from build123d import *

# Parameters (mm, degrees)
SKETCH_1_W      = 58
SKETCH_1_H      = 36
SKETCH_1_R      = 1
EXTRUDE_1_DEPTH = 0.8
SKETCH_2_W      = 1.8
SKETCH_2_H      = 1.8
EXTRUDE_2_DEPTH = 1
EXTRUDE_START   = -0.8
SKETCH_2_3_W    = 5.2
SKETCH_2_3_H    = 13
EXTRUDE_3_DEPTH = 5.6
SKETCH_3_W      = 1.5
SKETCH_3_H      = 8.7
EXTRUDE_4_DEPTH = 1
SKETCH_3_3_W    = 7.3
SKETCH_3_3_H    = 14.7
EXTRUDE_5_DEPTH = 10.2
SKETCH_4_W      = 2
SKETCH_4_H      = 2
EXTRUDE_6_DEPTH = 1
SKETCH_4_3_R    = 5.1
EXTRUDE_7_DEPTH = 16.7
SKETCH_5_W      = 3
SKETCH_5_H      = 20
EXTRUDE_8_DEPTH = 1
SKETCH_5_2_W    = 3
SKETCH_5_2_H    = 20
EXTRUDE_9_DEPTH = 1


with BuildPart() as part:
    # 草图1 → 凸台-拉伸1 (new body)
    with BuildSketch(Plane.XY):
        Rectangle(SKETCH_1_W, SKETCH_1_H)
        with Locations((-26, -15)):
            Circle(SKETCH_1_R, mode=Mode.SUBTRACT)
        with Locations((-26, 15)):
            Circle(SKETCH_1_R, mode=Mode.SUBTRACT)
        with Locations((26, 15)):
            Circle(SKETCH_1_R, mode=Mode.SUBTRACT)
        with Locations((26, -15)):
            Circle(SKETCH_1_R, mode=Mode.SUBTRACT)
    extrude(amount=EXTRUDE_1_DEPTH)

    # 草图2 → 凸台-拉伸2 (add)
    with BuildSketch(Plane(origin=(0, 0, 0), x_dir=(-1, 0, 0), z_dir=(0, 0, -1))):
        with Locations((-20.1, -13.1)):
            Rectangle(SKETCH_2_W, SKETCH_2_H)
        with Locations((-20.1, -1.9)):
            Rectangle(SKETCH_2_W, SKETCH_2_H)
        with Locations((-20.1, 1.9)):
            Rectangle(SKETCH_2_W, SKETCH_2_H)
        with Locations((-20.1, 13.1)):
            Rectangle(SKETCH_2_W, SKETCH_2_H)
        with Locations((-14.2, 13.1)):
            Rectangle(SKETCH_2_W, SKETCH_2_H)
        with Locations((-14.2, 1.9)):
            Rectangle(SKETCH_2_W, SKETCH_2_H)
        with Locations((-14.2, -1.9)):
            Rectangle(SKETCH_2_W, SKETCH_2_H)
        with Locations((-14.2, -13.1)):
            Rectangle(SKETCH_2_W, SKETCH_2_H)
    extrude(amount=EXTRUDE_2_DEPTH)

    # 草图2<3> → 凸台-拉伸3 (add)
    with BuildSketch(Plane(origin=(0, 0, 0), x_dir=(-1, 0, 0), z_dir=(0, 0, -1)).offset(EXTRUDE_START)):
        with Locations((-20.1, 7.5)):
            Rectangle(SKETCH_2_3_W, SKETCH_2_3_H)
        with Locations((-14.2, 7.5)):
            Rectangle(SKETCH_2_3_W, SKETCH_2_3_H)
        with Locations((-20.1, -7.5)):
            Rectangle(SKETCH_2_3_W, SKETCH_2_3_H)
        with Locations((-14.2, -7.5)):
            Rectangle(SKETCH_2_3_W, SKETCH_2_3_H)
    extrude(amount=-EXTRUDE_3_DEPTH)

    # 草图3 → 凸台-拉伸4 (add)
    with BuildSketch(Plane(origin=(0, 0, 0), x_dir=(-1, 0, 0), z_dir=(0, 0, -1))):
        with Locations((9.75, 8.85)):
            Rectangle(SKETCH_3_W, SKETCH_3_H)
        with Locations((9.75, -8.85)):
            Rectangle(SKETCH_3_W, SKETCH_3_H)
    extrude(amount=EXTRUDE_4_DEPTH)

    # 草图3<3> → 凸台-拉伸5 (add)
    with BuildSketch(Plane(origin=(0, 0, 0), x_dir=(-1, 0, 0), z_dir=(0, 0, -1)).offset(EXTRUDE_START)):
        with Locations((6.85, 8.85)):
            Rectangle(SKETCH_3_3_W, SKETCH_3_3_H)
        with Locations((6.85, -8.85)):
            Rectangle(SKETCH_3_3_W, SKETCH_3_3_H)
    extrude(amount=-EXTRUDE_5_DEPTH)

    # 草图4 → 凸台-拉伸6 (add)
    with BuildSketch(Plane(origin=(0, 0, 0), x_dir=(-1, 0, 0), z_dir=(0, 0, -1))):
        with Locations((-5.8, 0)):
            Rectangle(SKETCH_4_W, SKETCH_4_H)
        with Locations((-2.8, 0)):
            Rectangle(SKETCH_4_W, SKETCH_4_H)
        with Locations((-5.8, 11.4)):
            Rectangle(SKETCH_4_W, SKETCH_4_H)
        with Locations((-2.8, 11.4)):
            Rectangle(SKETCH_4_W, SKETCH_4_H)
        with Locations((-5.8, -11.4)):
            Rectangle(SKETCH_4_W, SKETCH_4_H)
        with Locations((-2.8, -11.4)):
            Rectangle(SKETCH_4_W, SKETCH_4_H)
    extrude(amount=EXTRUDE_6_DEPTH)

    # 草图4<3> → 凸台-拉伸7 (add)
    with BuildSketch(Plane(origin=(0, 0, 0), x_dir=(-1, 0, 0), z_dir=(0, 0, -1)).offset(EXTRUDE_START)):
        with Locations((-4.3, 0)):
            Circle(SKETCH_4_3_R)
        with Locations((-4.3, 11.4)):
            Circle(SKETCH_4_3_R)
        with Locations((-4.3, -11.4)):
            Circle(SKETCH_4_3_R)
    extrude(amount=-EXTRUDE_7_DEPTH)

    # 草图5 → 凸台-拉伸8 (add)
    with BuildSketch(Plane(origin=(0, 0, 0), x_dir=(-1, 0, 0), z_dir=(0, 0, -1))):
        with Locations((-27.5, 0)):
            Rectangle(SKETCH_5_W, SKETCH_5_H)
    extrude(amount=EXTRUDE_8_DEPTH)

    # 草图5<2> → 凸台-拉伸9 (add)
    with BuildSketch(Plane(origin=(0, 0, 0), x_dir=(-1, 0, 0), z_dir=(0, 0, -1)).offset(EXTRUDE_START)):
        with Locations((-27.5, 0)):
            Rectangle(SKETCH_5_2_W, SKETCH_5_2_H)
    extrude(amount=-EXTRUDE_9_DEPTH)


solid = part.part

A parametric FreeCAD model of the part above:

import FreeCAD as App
import Part
import Sketcher

V = App.Vector
Q = App.Units.Quantity

doc = App.newDocument("Part")
params = doc.addObject("Spreadsheet::Sheet", "Params")
for row, (alias, value) in enumerate([
    ("sketch1_diameter", "2 mm"),
    ("sketch1_width", "58 mm"),
    ("sketch1_height", "36 mm"),
    ("pad1_length", "0.8 mm"),
    ("sketch2_width", "1.8 mm"),
    ("pad2_length", "1 mm"),
    ("sketch3_height", "13 mm"),
    ("sketch3_width", "5.2 mm"),
    ("pad3_length", "5.6 mm"),
    ("sketch4_width", "1.5 mm"),
    ("sketch4_height", "8.7 mm"),
    ("pad4_length", "1 mm"),
    ("sketch5_width", "7.3 mm"),
    ("sketch5_height", "14.7 mm"),
    ("pad5_length", "10.2 mm"),
    ("sketch6_width", "2 mm"),
    ("pad6_length", "1 mm"),
    ("sketch7_diameter", "10.2 mm"),
    ("pad7_length", "16.7 mm"),
    ("sketch8_width", "3 mm"),
    ("sketch8_height", "20 mm"),
    ("pad8_length", "1 mm"),
    ("sketch9_width", "3 mm"),
    ("sketch9_height", "20 mm"),
    ("pad9_length", "1 mm"),
], start=1):
    params.set(f"A{row}", alias)
    params.set(f"B{row}", "=" + value)
    params.setAlias(f"B{row}", alias)

body = doc.addObject("PartDesign::Body", "Body")

sketch1 = doc.addObject("Sketcher::SketchObject", "Sketch")
body.addObject(sketch1)
sketch1.AttachmentSupport = (doc.XY_Plane, [""])
sketch1.MapMode = "FlatFace"
sketch1.addGeometry(Part.LineSegment(V(-29, 18, 0), V(-29, -18, 0)), False)
sketch1.addGeometry(Part.LineSegment(V(-29, -18, 0), V(29, -18, 0)), False)
sketch1.addGeometry(Part.LineSegment(V(29, -18, 0), V(29, 18, 0)), False)
sketch1.addGeometry(Part.LineSegment(V(29, 18, 0), V(-29, 18, 0)), False)
sketch1.addGeometry(Part.Circle(V(-26, -15, 0), V(0, 0, 1), 1), False)
sketch1.addGeometry(Part.Circle(V(26, -15, 0), V(0, 0, 1), 1), False)
sketch1.addGeometry(Part.Circle(V(-26, 15, 0), V(0, 0, 1), 1), False)
sketch1.addGeometry(Part.Circle(V(26, 15, 0), V(0, 0, 1), 1), False)
sketch1.addConstraint(Sketcher.Constraint("Coincident", 0, 2, 1, 1))
sketch1.addConstraint(Sketcher.Constraint("Coincident", 1, 2, 2, 1))
sketch1.addConstraint(Sketcher.Constraint("Coincident", 2, 2, 3, 1))
sketch1.addConstraint(Sketcher.Constraint("Coincident", 3, 2, 0, 1))
sketch1.addConstraint(Sketcher.Constraint("Vertical", 0))
sketch1.addConstraint(Sketcher.Constraint("Horizontal", 1))
sketch1.addConstraint(Sketcher.Constraint("Vertical", 2))
sketch1.addConstraint(Sketcher.Constraint("Horizontal", 3))
sketch1.addConstraint(Sketcher.Constraint("Equal", 4, 5))
sketch1.addConstraint(Sketcher.Constraint("Equal", 5, 6))
sketch1.addConstraint(Sketcher.Constraint("Equal", 6, 7))
sketch1.addConstraint(Sketcher.Constraint("Symmetric", 5, 3, 6, 3, -1, 1))
sketch1.addConstraint(Sketcher.Constraint("Symmetric", 4, 3, 7, 3, -1, 1))
sketch1.addConstraint(Sketcher.Constraint("Symmetric", 0, 2, 2, 2, -1, 1))
sketch1.addConstraint(Sketcher.Constraint("Symmetric", 4, 3, 5, 3, -2))
sketch1.addConstraint(Sketcher.Constraint("Diameter", 4, Q("2 mm")))
sketch1.addConstraint(Sketcher.Constraint("DistanceX", 1, 1, 1, 2, Q("58 mm")))
sketch1.addConstraint(Sketcher.Constraint("DistanceY", 0, 2, 0, 1, Q("36 mm")))
sketch1.addConstraint(Sketcher.Constraint("DistanceX", 4, 3, -1, 1, Q("26 mm")))
sketch1.addConstraint(Sketcher.Constraint("DistanceY", 4, 3, -1, 1, Q("15 mm")))
sketch1.setExpression("Constraints[15]", "Params.sketch1_diameter")
sketch1.setExpression("Constraints[16]", "Params.sketch1_width")
sketch1.setExpression("Constraints[17]", "Params.sketch1_height")
pad1 = doc.addObject("PartDesign::Pad", "Pad")
body.addObject(pad1)
pad1.Profile = sketch1
pad1.setExpression("Length", "Params.pad1_length")

sketch2 = doc.addObject("Sketcher::SketchObject", "Sketch001")
body.addObject(sketch2)
sketch2.AttachmentSupport = (doc.XY_Plane, [""])
sketch2.MapMode = "FlatFace"
sketch2.addGeometry(Part.LineSegment(V(21, -12.2, 0), V(21, -14, 0)), False)
sketch2.addGeometry(Part.LineSegment(V(21, -14, 0), V(19.2, -14, 0)), False)
sketch2.addGeometry(Part.LineSegment(V(19.2, -14, 0), V(19.2, -12.2, 0)), False)
sketch2.addGeometry(Part.LineSegment(V(19.2, -12.2, 0), V(21, -12.2, 0)), False)
sketch2.addGeometry(Part.LineSegment(V(21, -1, 0), V(21, -2.8, 0)), False)
sketch2.addGeometry(Part.LineSegment(V(21, -2.8, 0), V(19.2, -2.8, 0)), False)
sketch2.addGeometry(Part.LineSegment(V(19.2, -2.8, 0), V(19.2, -1, 0)), False)
sketch2.addGeometry(Part.LineSegment(V(19.2, -1, 0), V(21, -1, 0)), False)
sketch2.addGeometry(Part.LineSegment(V(21, 2.8, 0), V(21, 1, 0)), False)
sketch2.addGeometry(Part.LineSegment(V(21, 1, 0), V(19.2, 1, 0)), False)
sketch2.addGeometry(Part.LineSegment(V(19.2, 1, 0), V(19.2, 2.8, 0)), False)
sketch2.addGeometry(Part.LineSegment(V(19.2, 2.8, 0), V(21, 2.8, 0)), False)
sketch2.addGeometry(Part.LineSegment(V(21, 14, 0), V(21, 12.2, 0)), False)
sketch2.addGeometry(Part.LineSegment(V(21, 12.2, 0), V(19.2, 12.2, 0)), False)
sketch2.addGeometry(Part.LineSegment(V(19.2, 12.2, 0), V(19.2, 14, 0)), False)
sketch2.addGeometry(Part.LineSegment(V(19.2, 14, 0), V(21, 14, 0)), False)
sketch2.addGeometry(Part.LineSegment(V(15.1, 14, 0), V(15.1, 12.2, 0)), False)
sketch2.addGeometry(Part.LineSegment(V(15.1, 12.2, 0), V(13.3, 12.2, 0)), False)
sketch2.addGeometry(Part.LineSegment(V(13.3, 12.2, 0), V(13.3, 14, 0)), False)
sketch2.addGeometry(Part.LineSegment(V(13.3, 14, 0), V(15.1, 14, 0)), False)
sketch2.addGeometry(Part.LineSegment(V(15.1, 2.8, 0), V(15.1, 1, 0)), False)
sketch2.addGeometry(Part.LineSegment(V(15.1, 1, 0), V(13.3, 1, 0)), False)
sketch2.addGeometry(Part.LineSegment(V(13.3, 1, 0), V(13.3, 2.8, 0)), False)
sketch2.addGeometry(Part.LineSegment(V(13.3, 2.8, 0), V(15.1, 2.8, 0)), False)
sketch2.addGeometry(Part.LineSegment(V(15.1, -1, 0), V(15.1, -2.8, 0)), False)
sketch2.addGeometry(Part.LineSegment(V(15.1, -2.8, 0), V(13.3, -2.8, 0)), False)
sketch2.addGeometry(Part.LineSegment(V(13.3, -2.8, 0), V(13.3, -1, 0)), False)
sketch2.addGeometry(Part.LineSegment(V(13.3, -1, 0), V(15.1, -1, 0)), False)
sketch2.addGeometry(Part.LineSegment(V(15.1, -12.2, 0), V(15.1, -14, 0)), False)
sketch2.addGeometry(Part.LineSegment(V(15.1, -14, 0), V(13.3, -14, 0)), False)
sketch2.addGeometry(Part.LineSegment(V(13.3, -14, 0), V(13.3, -12.2, 0)), False)
sketch2.addGeometry(Part.LineSegment(V(13.3, -12.2, 0), V(15.1, -12.2, 0)), False)
sketch2.addConstraint(Sketcher.Constraint("Coincident", 0, 2, 1, 1))
sketch2.addConstraint(Sketcher.Constraint("Coincident", 1, 2, 2, 1))
sketch2.addConstraint(Sketcher.Constraint("Coincident", 2, 2, 3, 1))
sketch2.addConstraint(Sketcher.Constraint("Coincident", 3, 2, 0, 1))
sketch2.addConstraint(Sketcher.Constraint("Coincident", 4, 2, 5, 1))
sketch2.addConstraint(Sketcher.Constraint("Coincident", 5, 2, 6, 1))
sketch2.addConstraint(Sketcher.Constraint("Coincident", 6, 2, 7, 1))
sketch2.addConstraint(Sketcher.Constraint("Coincident", 7, 2, 4, 1))
sketch2.addConstraint(Sketcher.Constraint("Coincident", 8, 2, 9, 1))
sketch2.addConstraint(Sketcher.Constraint("Coincident", 9, 2, 10, 1))
sketch2.addConstraint(Sketcher.Constraint("Coincident", 10, 2, 11, 1))
sketch2.addConstraint(Sketcher.Constraint("Coincident", 11, 2, 8, 1))
sketch2.addConstraint(Sketcher.Constraint("Coincident", 12, 2, 13, 1))
sketch2.addConstraint(Sketcher.Constraint("Coincident", 13, 2, 14, 1))
sketch2.addConstraint(Sketcher.Constraint("Coincident", 14, 2, 15, 1))
sketch2.addConstraint(Sketcher.Constraint("Coincident", 15, 2, 12, 1))
sketch2.addConstraint(Sketcher.Constraint("Coincident", 16, 2, 17, 1))
sketch2.addConstraint(Sketcher.Constraint("Coincident", 17, 2, 18, 1))
sketch2.addConstraint(Sketcher.Constraint("Coincident", 18, 2, 19, 1))
sketch2.addConstraint(Sketcher.Constraint("Coincident", 19, 2, 16, 1))
sketch2.addConstraint(Sketcher.Constraint("Coincident", 20, 2, 21, 1))
sketch2.addConstraint(Sketcher.Constraint("Coincident", 21, 2, 22, 1))
sketch2.addConstraint(Sketcher.Constraint("Coincident", 22, 2, 23, 1))
sketch2.addConstraint(Sketcher.Constraint("Coincident", 23, 2, 20, 1))
sketch2.addConstraint(Sketcher.Constraint("Coincident", 24, 2, 25, 1))
sketch2.addConstraint(Sketcher.Constraint("Coincident", 25, 2, 26, 1))
sketch2.addConstraint(Sketcher.Constraint("Coincident", 26, 2, 27, 1))
sketch2.addConstraint(Sketcher.Constraint("Coincident", 27, 2, 24, 1))
sketch2.addConstraint(Sketcher.Constraint("Coincident", 28, 2, 29, 1))
sketch2.addConstraint(Sketcher.Constraint("Coincident", 29, 2, 30, 1))
sketch2.addConstraint(Sketcher.Constraint("Coincident", 30, 2, 31, 1))
sketch2.addConstraint(Sketcher.Constraint("Coincident", 31, 2, 28, 1))
sketch2.addConstraint(Sketcher.Constraint("Vertical", 0))
sketch2.addConstraint(Sketcher.Constraint("Horizontal", 1))
sketch2.addConstraint(Sketcher.Constraint("Vertical", 2))
sketch2.addConstraint(Sketcher.Constraint("Horizontal", 3))
sketch2.addConstraint(Sketcher.Constraint("Vertical", 4))
sketch2.addConstraint(Sketcher.Constraint("Horizontal", 5))
sketch2.addConstraint(Sketcher.Constraint("Vertical", 6))
sketch2.addConstraint(Sketcher.Constraint("Horizontal", 7))
sketch2.addConstraint(Sketcher.Constraint("Vertical", 8))
sketch2.addConstraint(Sketcher.Constraint("Horizontal", 9))
sketch2.addConstraint(Sketcher.Constraint("Vertical", 10))
sketch2.addConstraint(Sketcher.Constraint("Horizontal", 11))
sketch2.addConstraint(Sketcher.Constraint("Vertical", 12))
sketch2.addConstraint(Sketcher.Constraint("Horizontal", 13))
sketch2.addConstraint(Sketcher.Constraint("Vertical", 14))
sketch2.addConstraint(Sketcher.Constraint("Horizontal", 15))
sketch2.addConstraint(Sketcher.Constraint("Vertical", 16))
sketch2.addConstraint(Sketcher.Constraint("Horizontal", 17))
sketch2.addConstraint(Sketcher.Constraint("Vertical", 18))
sketch2.addConstraint(Sketcher.Constraint("Horizontal", 19))
sketch2.addConstraint(Sketcher.Constraint("Vertical", 20))
sketch2.addConstraint(Sketcher.Constraint("Horizontal", 21))
sketch2.addConstraint(Sketcher.Constraint("Vertical", 22))
sketch2.addConstraint(Sketcher.Constraint("Horizontal", 23))
sketch2.addConstraint(Sketcher.Constraint("Vertical", 24))
sketch2.addConstraint(Sketcher.Constraint("Horizontal", 25))
sketch2.addConstraint(Sketcher.Constraint("Vertical", 26))
sketch2.addConstraint(Sketcher.Constraint("Horizontal", 27))
sketch2.addConstraint(Sketcher.Constraint("Vertical", 28))
sketch2.addConstraint(Sketcher.Constraint("Horizontal", 29))
sketch2.addConstraint(Sketcher.Constraint("Vertical", 30))
sketch2.addConstraint(Sketcher.Constraint("Horizontal", 31))
sketch2.addConstraint(Sketcher.Constraint("Symmetric", 7, 2, 8, 2, -1))
sketch2.addConstraint(Sketcher.Constraint("Symmetric", 5, 2, 10, 2, -1))
sketch2.addConstraint(Sketcher.Constraint("Symmetric", 3, 2, 12, 2, -1))
sketch2.addConstraint(Sketcher.Constraint("Symmetric", 1, 2, 14, 2, -1))
sketch2.addConstraint(Sketcher.Constraint("Symmetric", 23, 2, 24, 2, -1))
sketch2.addConstraint(Sketcher.Constraint("Symmetric", 21, 2, 26, 2, -1))
sketch2.addConstraint(Sketcher.Constraint("Symmetric", 19, 2, 28, 2, -1))
sketch2.addConstraint(Sketcher.Constraint("Symmetric", 17, 2, 30, 2, -1))
sketch2.addConstraint(Sketcher.Constraint("Horizontal", 13, 2, 16, 2))
sketch2.addConstraint(Sketcher.Constraint("Horizontal", 15, 2, 18, 2))
sketch2.addConstraint(Sketcher.Constraint("Horizontal", 9, 2, 20, 2))
sketch2.addConstraint(Sketcher.Constraint("Horizontal", 11, 2, 22, 2))
sketch2.addConstraint(Sketcher.Constraint("Vertical", 3, 2, 4, 2))
sketch2.addConstraint(Sketcher.Constraint("Vertical", 2, 2, 5, 2))
sketch2.addConstraint(Sketcher.Constraint("Vertical", 19, 2, 20, 2))
sketch2.addConstraint(Sketcher.Constraint("Vertical", 18, 2, 21, 2))
sketch2.addConstraint(Sketcher.Constraint("Equal", 15, 17))
sketch2.addConstraint(Sketcher.Constraint("Equal", 31, 0))
sketch2.addConstraint(Sketcher.Constraint("Equal", 2, 4))
sketch2.addConstraint(Sketcher.Constraint("DistanceX", 1, 2, 1, 1, Q("1.8 mm")))
sketch2.addConstraint(Sketcher.Constraint("DistanceX", -1, 1, 0, 2, Q("21 mm")))
sketch2.addConstraint(Sketcher.Constraint("DistanceY", 0, 2, -1, 1, Q("14 mm")))
sketch2.addConstraint(Sketcher.Constraint("DistanceY", 6, 2, -1, 1, Q("1 mm")))
sketch2.addConstraint(Sketcher.Constraint("DistanceX", -1, 1, 16, 2, Q("15.1 mm")))
sketch2.setExpression("Constraints[83]", "Params.sketch2_width")
pad2 = doc.addObject("PartDesign::Pad", "Pad001")
body.addObject(pad2)
pad2.Profile = sketch2
pad2.setExpression("Length", "Params.pad2_length")
pad2.Reversed = True

sketch3 = doc.addObject("Sketcher::SketchObject", "Sketch002")
body.addObject(sketch3)
sketch3.AttachmentSupport = (doc.XY_Plane, [""])
sketch3.MapMode = "FlatFace"
sketch3.AttachmentOffset = App.Placement(V(0, 0, 0.8), App.Rotation())
sketch3.addGeometry(Part.LineSegment(V(23, 14, 0), V(23, 1, 0)), False)
sketch3.addGeometry(Part.LineSegment(V(23, 1, 0), V(18, 1, 0)), False)
sketch3.addGeometry(Part.LineSegment(V(18, 1, 0), V(18, 14, 0)), False)
sketch3.addGeometry(Part.LineSegment(V(18, 14, 0), V(23, 14, 0)), False)
sketch3.addGeometry(Part.LineSegment(V(17, 14, 0), V(17, 1, 0)), False)
sketch3.addGeometry(Part.LineSegment(V(17, 1, 0), V(12, 1, 0)), False)
sketch3.addGeometry(Part.LineSegment(V(12, 1, 0), V(12, 14, 0)), False)
sketch3.addGeometry(Part.LineSegment(V(12, 14, 0), V(17, 14, 0)), False)
sketch3.addGeometry(Part.LineSegment(V(23, -1, 0), V(23, -14, 0)), False)
sketch3.addGeometry(Part.LineSegment(V(23, -14, 0), V(18, -14, 0)), False)
sketch3.addGeometry(Part.LineSegment(V(18, -14, 0), V(18, -1, 0)), False)
sketch3.addGeometry(Part.LineSegment(V(18, -1, 0), V(23, -1, 0)), False)
sketch3.addGeometry(Part.LineSegment(V(17, -1, 0), V(17, -14, 0)), False)
sketch3.addGeometry(Part.LineSegment(V(17, -14, 0), V(12, -14, 0)), False)
sketch3.addGeometry(Part.LineSegment(V(12, -14, 0), V(12, -1, 0)), False)
sketch3.addGeometry(Part.LineSegment(V(12, -1, 0), V(17, -1, 0)), False)
sketch3.addConstraint(Sketcher.Constraint("Coincident", 0, 2, 1, 1))
sketch3.addConstraint(Sketcher.Constraint("Coincident", 1, 2, 2, 1))
sketch3.addConstraint(Sketcher.Constraint("Coincident", 2, 2, 3, 1))
sketch3.addConstraint(Sketcher.Constraint("Coincident", 3, 2, 0, 1))
sketch3.addConstraint(Sketcher.Constraint("Coincident", 4, 2, 5, 1))
sketch3.addConstraint(Sketcher.Constraint("Coincident", 5, 2, 6, 1))
sketch3.addConstraint(Sketcher.Constraint("Coincident", 6, 2, 7, 1))
sketch3.addConstraint(Sketcher.Constraint("Coincident", 7, 2, 4, 1))
sketch3.addConstraint(Sketcher.Constraint("Coincident", 8, 2, 9, 1))
sketch3.addConstraint(Sketcher.Constraint("Coincident", 9, 2, 10, 1))
sketch3.addConstraint(Sketcher.Constraint("Coincident", 10, 2, 11, 1))
sketch3.addConstraint(Sketcher.Constraint("Coincident", 11, 2, 8, 1))
sketch3.addConstraint(Sketcher.Constraint("Coincident", 12, 2, 13, 1))
sketch3.addConstraint(Sketcher.Constraint("Coincident", 13, 2, 14, 1))
sketch3.addConstraint(Sketcher.Constraint("Coincident", 14, 2, 15, 1))
sketch3.addConstraint(Sketcher.Constraint("Coincident", 15, 2, 12, 1))
sketch3.addConstraint(Sketcher.Constraint("Vertical", 0))
sketch3.addConstraint(Sketcher.Constraint("Horizontal", 1))
sketch3.addConstraint(Sketcher.Constraint("Vertical", 2))
sketch3.addConstraint(Sketcher.Constraint("Horizontal", 3))
sketch3.addConstraint(Sketcher.Constraint("Vertical", 4))
sketch3.addConstraint(Sketcher.Constraint("Horizontal", 5))
sketch3.addConstraint(Sketcher.Constraint("Vertical", 6))
sketch3.addConstraint(Sketcher.Constraint("Horizontal", 7))
sketch3.addConstraint(Sketcher.Constraint("Vertical", 8))
sketch3.addConstraint(Sketcher.Constraint("Horizontal", 9))
sketch3.addConstraint(Sketcher.Constraint("Vertical", 10))
sketch3.addConstraint(Sketcher.Constraint("Horizontal", 11))
sketch3.addConstraint(Sketcher.Constraint("Vertical", 12))
sketch3.addConstraint(Sketcher.Constraint("Horizontal", 13))
sketch3.addConstraint(Sketcher.Constraint("Vertical", 14))
sketch3.addConstraint(Sketcher.Constraint("Horizontal", 15))
sketch3.addConstraint(Sketcher.Constraint("Symmetric", 3, 2, 8, 2, -1))
sketch3.addConstraint(Sketcher.Constraint("Symmetric", 1, 2, 10, 2, -1))
sketch3.addConstraint(Sketcher.Constraint("Symmetric", 7, 2, 12, 2, -1))
sketch3.addConstraint(Sketcher.Constraint("Symmetric", 5, 2, 14, 2, -1))
sketch3.addConstraint(Sketcher.Constraint("Horizontal", 1, 2, 4, 2))
sketch3.addConstraint(Sketcher.Constraint("Horizontal", 3, 2, 6, 2))
sketch3.addConstraint(Sketcher.Constraint("Equal", 3, 5))
sketch3.addConstraint(Sketcher.Constraint("DistanceY", 0, 2, 0, 1, Q("13 mm")))
sketch3.addConstraint(Sketcher.Constraint("DistanceX", 1, 2, 1, 1, Q("5.2 mm")))
sketch3.addConstraint(Sketcher.Constraint("DistanceY", -1, 1, 0, 2, Q("1 mm")))
sketch3.addConstraint(Sketcher.Constraint("DistanceX", -1, 1, 0, 2, Q("22.7 mm")))
sketch3.addConstraint(Sketcher.Constraint("DistanceX", -1, 1, 4, 2, Q("16.8 mm")))
sketch3.setExpression("Constraints[39]", "Params.sketch3_height")
sketch3.setExpression("Constraints[40]", "Params.sketch3_width")
pad3 = doc.addObject("PartDesign::Pad", "Pad002")
body.addObject(pad3)
pad3.Profile = sketch3
pad3.setExpression("Length", "Params.pad3_length")

sketch4 = doc.addObject("Sketcher::SketchObject", "Sketch003")
body.addObject(sketch4)
sketch4.AttachmentSupport = (doc.XY_Plane, [""])
sketch4.MapMode = "FlatFace"
sketch4.addGeometry(Part.LineSegment(V(-9, 13.2, 0), V(-9, 4.5, 0)), False)
sketch4.addGeometry(Part.LineSegment(V(-9, 4.5, 0), V(-10.5, 4.5, 0)), False)
sketch4.addGeometry(Part.LineSegment(V(-10.5, 4.5, 0), V(-10.5, 13.2, 0)), False)
sketch4.addGeometry(Part.LineSegment(V(-10.5, 13.2, 0), V(-9, 13.2, 0)), False)
sketch4.addGeometry(Part.LineSegment(V(-9, -4.5, 0), V(-9, -13.2, 0)), False)
sketch4.addGeometry(Part.LineSegment(V(-9, -13.2, 0), V(-10.5, -13.2, 0)), False)
sketch4.addGeometry(Part.LineSegment(V(-10.5, -13.2, 0), V(-10.5, -4.5, 0)), False)
sketch4.addGeometry(Part.LineSegment(V(-10.5, -4.5, 0), V(-9, -4.5, 0)), False)
sketch4.addConstraint(Sketcher.Constraint("Coincident", 0, 2, 1, 1))
sketch4.addConstraint(Sketcher.Constraint("Coincident", 1, 2, 2, 1))
sketch4.addConstraint(Sketcher.Constraint("Coincident", 2, 2, 3, 1))
sketch4.addConstraint(Sketcher.Constraint("Coincident", 3, 2, 0, 1))
sketch4.addConstraint(Sketcher.Constraint("Coincident", 4, 2, 5, 1))
sketch4.addConstraint(Sketcher.Constraint("Coincident", 5, 2, 6, 1))
sketch4.addConstraint(Sketcher.Constraint("Coincident", 6, 2, 7, 1))
sketch4.addConstraint(Sketcher.Constraint("Coincident", 7, 2, 4, 1))
sketch4.addConstraint(Sketcher.Constraint("Vertical", 0))
sketch4.addConstraint(Sketcher.Constraint("Horizontal", 1))
sketch4.addConstraint(Sketcher.Constraint("Vertical", 2))
sketch4.addConstraint(Sketcher.Constraint("Horizontal", 3))
sketch4.addConstraint(Sketcher.Constraint("Vertical", 4))
sketch4.addConstraint(Sketcher.Constraint("Horizontal", 5))
sketch4.addConstraint(Sketcher.Constraint("Vertical", 6))
sketch4.addConstraint(Sketcher.Constraint("Horizontal", 7))
sketch4.addConstraint(Sketcher.Constraint("Symmetric", 3, 2, 4, 2, -1))
sketch4.addConstraint(Sketcher.Constraint("Symmetric", 1, 2, 6, 2, -1))
sketch4.addConstraint(Sketcher.Constraint("DistanceX", 1, 2, 1, 1, Q("1.5 mm")))
sketch4.addConstraint(Sketcher.Constraint("DistanceY", 0, 2, 0, 1, Q("8.7 mm")))
sketch4.addConstraint(Sketcher.Constraint("DistanceX", 0, 2, -1, 1, Q("9 mm")))
sketch4.addConstraint(Sketcher.Constraint("DistanceY", 6, 2, 1, 2, Q("9 mm")))
sketch4.setExpression("Constraints[18]", "Params.sketch4_width")
sketch4.setExpression("Constraints[19]", "Params.sketch4_height")
pad4 = doc.addObject("PartDesign::Pad", "Pad003")
body.addObject(pad4)
pad4.Profile = sketch4
pad4.setExpression("Length", "Params.pad4_length")
pad4.Reversed = True

sketch5 = doc.addObject("Sketcher::SketchObject", "Sketch004")
body.addObject(sketch5)
sketch5.AttachmentSupport = (doc.XY_Plane, [""])
sketch5.MapMode = "FlatFace"
sketch5.AttachmentOffset = App.Placement(V(0, 0, 0.8), App.Rotation())
sketch5.addGeometry(Part.LineSegment(V(-3, 16, 0), V(-3, 2, 0)), False)
sketch5.addGeometry(Part.LineSegment(V(-3, 2, 0), V(-10, 2, 0)), False)
sketch5.addGeometry(Part.LineSegment(V(-10, 2, 0), V(-10, 16, 0)), False)
sketch5.addGeometry(Part.LineSegment(V(-10, 16, 0), V(-3, 16, 0)), False)
sketch5.addGeometry(Part.LineSegment(V(-3, -2, 0), V(-3, -16, 0)), False)
sketch5.addGeometry(Part.LineSegment(V(-3, -16, 0), V(-10, -16, 0)), False)
sketch5.addGeometry(Part.LineSegment(V(-10, -16, 0), V(-10, -2, 0)), False)
sketch5.addGeometry(Part.LineSegment(V(-10, -2, 0), V(-3, -2, 0)), False)
sketch5.addConstraint(Sketcher.Constraint("Coincident", 0, 2, 1, 1))
sketch5.addConstraint(Sketcher.Constraint("Coincident", 1, 2, 2, 1))
sketch5.addConstraint(Sketcher.Constraint("Coincident", 2, 2, 3, 1))
sketch5.addConstraint(Sketcher.Constraint("Coincident", 3, 2, 0, 1))
sketch5.addConstraint(Sketcher.Constraint("Coincident", 4, 2, 5, 1))
sketch5.addConstraint(Sketcher.Constraint("Coincident", 5, 2, 6, 1))
sketch5.addConstraint(Sketcher.Constraint("Coincident", 6, 2, 7, 1))
sketch5.addConstraint(Sketcher.Constraint("Coincident", 7, 2, 4, 1))
sketch5.addConstraint(Sketcher.Constraint("Vertical", 0))
sketch5.addConstraint(Sketcher.Constraint("Horizontal", 1))
sketch5.addConstraint(Sketcher.Constraint("Vertical", 2))
sketch5.addConstraint(Sketcher.Constraint("Horizontal", 3))
sketch5.addConstraint(Sketcher.Constraint("Vertical", 4))
sketch5.addConstraint(Sketcher.Constraint("Horizontal", 5))
sketch5.addConstraint(Sketcher.Constraint("Vertical", 6))
sketch5.addConstraint(Sketcher.Constraint("Horizontal", 7))
sketch5.addConstraint(Sketcher.Constraint("Symmetric", 3, 2, 4, 2, -1))
sketch5.addConstraint(Sketcher.Constraint("Symmetric", 1, 2, 6, 2, -1))
sketch5.addConstraint(Sketcher.Constraint("DistanceX", 1, 2, 1, 1, Q("7.3 mm")))
sketch5.addConstraint(Sketcher.Constraint("DistanceY", 0, 2, 0, 1, Q("14.7 mm")))
sketch5.addConstraint(Sketcher.Constraint("DistanceY", 6, 2, 1, 2, Q("3 mm")))
sketch5.addConstraint(Sketcher.Constraint("DistanceX", 0, 2, -1, 1, Q("3.2 mm")))
sketch5.setExpression("Constraints[18]", "Params.sketch5_width")
sketch5.setExpression("Constraints[19]", "Params.sketch5_height")
pad5 = doc.addObject("PartDesign::Pad", "Pad004")
body.addObject(pad5)
pad5.Profile = sketch5
pad5.setExpression("Length", "Params.pad5_length")

sketch6 = doc.addObject("Sketcher::SketchObject", "Sketch005")
body.addObject(sketch6)
sketch6.AttachmentSupport = (doc.XY_Plane, [""])
sketch6.MapMode = "FlatFace"
sketch6.addGeometry(Part.LineSegment(V(6.8, 1, 0), V(6.8, -1, 0)), False)
sketch6.addGeometry(Part.LineSegment(V(6.8, -1, 0), V(4.8, -1, 0)), False)
sketch6.addGeometry(Part.LineSegment(V(4.8, -1, 0), V(4.8, 1, 0)), False)
sketch6.addGeometry(Part.LineSegment(V(4.8, 1, 0), V(6.8, 1, 0)), False)
sketch6.addGeometry(Part.LineSegment(V(3.8, 1, 0), V(3.8, -1, 0)), False)
sketch6.addGeometry(Part.LineSegment(V(3.8, -1, 0), V(1.8, -1, 0)), False)
sketch6.addGeometry(Part.LineSegment(V(1.8, -1, 0), V(1.8, 1, 0)), False)
sketch6.addGeometry(Part.LineSegment(V(1.8, 1, 0), V(3.8, 1, 0)), False)
sketch6.addGeometry(Part.LineSegment(V(6.8, 12.4, 0), V(6.8, 10.4, 0)), False)
sketch6.addGeometry(Part.LineSegment(V(6.8, 10.4, 0), V(4.8, 10.4, 0)), False)
sketch6.addGeometry(Part.LineSegment(V(4.8, 10.4, 0), V(4.8, 12.4, 0)), False)
sketch6.addGeometry(Part.LineSegment(V(4.8, 12.4, 0), V(6.8, 12.4, 0)), False)
sketch6.addGeometry(Part.LineSegment(V(3.8, 12.4, 0), V(3.8, 10.4, 0)), False)
sketch6.addGeometry(Part.LineSegment(V(3.8, 10.4, 0), V(1.8, 10.4, 0)), False)
sketch6.addGeometry(Part.LineSegment(V(1.8, 10.4, 0), V(1.8, 12.4, 0)), False)
sketch6.addGeometry(Part.LineSegment(V(1.8, 12.4, 0), V(3.8, 12.4, 0)), False)
sketch6.addGeometry(Part.LineSegment(V(6.8, -10.4, 0), V(6.8, -12.4, 0)), False)
sketch6.addGeometry(Part.LineSegment(V(6.8, -12.4, 0), V(4.8, -12.4, 0)), False)
sketch6.addGeometry(Part.LineSegment(V(4.8, -12.4, 0), V(4.8, -10.4, 0)), False)
sketch6.addGeometry(Part.LineSegment(V(4.8, -10.4, 0), V(6.8, -10.4, 0)), False)
sketch6.addGeometry(Part.LineSegment(V(3.8, -10.4, 0), V(3.8, -12.4, 0)), False)
sketch6.addGeometry(Part.LineSegment(V(3.8, -12.4, 0), V(1.8, -12.4, 0)), False)
sketch6.addGeometry(Part.LineSegment(V(1.8, -12.4, 0), V(1.8, -10.4, 0)), False)
sketch6.addGeometry(Part.LineSegment(V(1.8, -10.4, 0), V(3.8, -10.4, 0)), False)
sketch6.addConstraint(Sketcher.Constraint("Coincident", 0, 2, 1, 1))
sketch6.addConstraint(Sketcher.Constraint("Coincident", 1, 2, 2, 1))
sketch6.addConstraint(Sketcher.Constraint("Coincident", 2, 2, 3, 1))
sketch6.addConstraint(Sketcher.Constraint("Coincident", 3, 2, 0, 1))
sketch6.addConstraint(Sketcher.Constraint("Coincident", 4, 2, 5, 1))
sketch6.addConstraint(Sketcher.Constraint("Coincident", 5, 2, 6, 1))
sketch6.addConstraint(Sketcher.Constraint("Coincident", 6, 2, 7, 1))
sketch6.addConstraint(Sketcher.Constraint("Coincident", 7, 2, 4, 1))
sketch6.addConstraint(Sketcher.Constraint("Coincident", 8, 2, 9, 1))
sketch6.addConstraint(Sketcher.Constraint("Coincident", 9, 2, 10, 1))
sketch6.addConstraint(Sketcher.Constraint("Coincident", 10, 2, 11, 1))
sketch6.addConstraint(Sketcher.Constraint("Coincident", 11, 2, 8, 1))
sketch6.addConstraint(Sketcher.Constraint("Coincident", 12, 2, 13, 1))
sketch6.addConstraint(Sketcher.Constraint("Coincident", 13, 2, 14, 1))
sketch6.addConstraint(Sketcher.Constraint("Coincident", 14, 2, 15, 1))
sketch6.addConstraint(Sketcher.Constraint("Coincident", 15, 2, 12, 1))
sketch6.addConstraint(Sketcher.Constraint("Coincident", 16, 2, 17, 1))
sketch6.addConstraint(Sketcher.Constraint("Coincident", 17, 2, 18, 1))
sketch6.addConstraint(Sketcher.Constraint("Coincident", 18, 2, 19, 1))
sketch6.addConstraint(Sketcher.Constraint("Coincident", 19, 2, 16, 1))
sketch6.addConstraint(Sketcher.Constraint("Coincident", 20, 2, 21, 1))
sketch6.addConstraint(Sketcher.Constraint("Coincident", 21, 2, 22, 1))
sketch6.addConstraint(Sketcher.Constraint("Coincident", 22, 2, 23, 1))
sketch6.addConstraint(Sketcher.Constraint("Coincident", 23, 2, 20, 1))
sketch6.addConstraint(Sketcher.Constraint("Vertical", 0))
sketch6.addConstraint(Sketcher.Constraint("Horizontal", 1))
sketch6.addConstraint(Sketcher.Constraint("Vertical", 2))
sketch6.addConstraint(Sketcher.Constraint("Horizontal", 3))
sketch6.addConstraint(Sketcher.Constraint("Vertical", 4))
sketch6.addConstraint(Sketcher.Constraint("Horizontal", 5))
sketch6.addConstraint(Sketcher.Constraint("Vertical", 6))
sketch6.addConstraint(Sketcher.Constraint("Horizontal", 7))
sketch6.addConstraint(Sketcher.Constraint("Vertical", 8))
sketch6.addConstraint(Sketcher.Constraint("Horizontal", 9))
sketch6.addConstraint(Sketcher.Constraint("Vertical", 10))
sketch6.addConstraint(Sketcher.Constraint("Horizontal", 11))
sketch6.addConstraint(Sketcher.Constraint("Vertical", 12))
sketch6.addConstraint(Sketcher.Constraint("Horizontal", 13))
sketch6.addConstraint(Sketcher.Constraint("Vertical", 14))
sketch6.addConstraint(Sketcher.Constraint("Horizontal", 15))
sketch6.addConstraint(Sketcher.Constraint("Vertical", 16))
sketch6.addConstraint(Sketcher.Constraint("Horizontal", 17))
sketch6.addConstraint(Sketcher.Constraint("Vertical", 18))
sketch6.addConstraint(Sketcher.Constraint("Horizontal", 19))
sketch6.addConstraint(Sketcher.Constraint("Vertical", 20))
sketch6.addConstraint(Sketcher.Constraint("Horizontal", 21))
sketch6.addConstraint(Sketcher.Constraint("Vertical", 22))
sketch6.addConstraint(Sketcher.Constraint("Horizontal", 23))
sketch6.addConstraint(Sketcher.Constraint("Symmetric", 11, 2, 16, 2, -1))
sketch6.addConstraint(Sketcher.Constraint("Symmetric", 9, 2, 18, 2, -1))
sketch6.addConstraint(Sketcher.Constraint("Symmetric", 15, 2, 20, 2, -1))
sketch6.addConstraint(Sketcher.Constraint("Symmetric", 13, 2, 22, 2, -1))
sketch6.addConstraint(Sketcher.Constraint("Horizontal", 1, 2, 4, 2))
sketch6.addConstraint(Sketcher.Constraint("Horizontal", 3, 2, 6, 2))
sketch6.addConstraint(Sketcher.Constraint("Horizontal", 9, 2, 12, 2))
sketch6.addConstraint(Sketcher.Constraint("Horizontal", 11, 2, 14, 2))
sketch6.addConstraint(Sketcher.Constraint("Vertical", 3, 2, 8, 2))
sketch6.addConstraint(Sketcher.Constraint("Vertical", 2, 2, 9, 2))
sketch6.addConstraint(Sketcher.Constraint("Vertical", 7, 2, 12, 2))
sketch6.addConstraint(Sketcher.Constraint("Vertical", 6, 2, 13, 2))
sketch6.addConstraint(Sketcher.Constraint("Equal", 3, 5))
sketch6.addConstraint(Sketcher.Constraint("Equal", 23, 0))
sketch6.addConstraint(Sketcher.Constraint("Equal", 6, 8))
sketch6.addConstraint(Sketcher.Constraint("DistanceX", 1, 2, 1, 1, Q("2 mm")))
sketch6.addConstraint(Sketcher.Constraint("DistanceY", 0, 2, -1, 1, Q("1 mm")))
sketch6.addConstraint(Sketcher.Constraint("DistanceX", 4, 2, 1, 2, Q("1 mm")))
sketch6.addConstraint(Sketcher.Constraint("DistanceX", -1, 1, 0, 2, Q("6.8 mm")))
sketch6.addConstraint(Sketcher.Constraint("DistanceY", -1, 1, 8, 2, Q("10.4 mm")))
sketch6.setExpression("Constraints[63]", "Params.sketch6_width")
pad6 = doc.addObject("PartDesign::Pad", "Pad005")
body.addObject(pad6)
pad6.Profile = sketch6
pad6.setExpression("Length", "Params.pad6_length")
pad6.Reversed = True

sketch7 = doc.addObject("Sketcher::SketchObject", "Sketch006")
body.addObject(sketch7)
sketch7.AttachmentSupport = (doc.XY_Plane, [""])
sketch7.MapMode = "FlatFace"
sketch7.AttachmentOffset = App.Placement(V(0, 0, 0.8), App.Rotation())
sketch7.addGeometry(Part.Circle(V(4, 0, 0), V(0, 0, 1), 5), False)
sketch7.addGeometry(Part.Circle(V(4, 11, 0), V(0, 0, 1), 5), False)
sketch7.addGeometry(Part.Circle(V(4, -11, 0), V(0, 0, 1), 5), False)
sketch7.addConstraint(Sketcher.Constraint("Equal", 0, 1))
sketch7.addConstraint(Sketcher.Constraint("Equal", 1, 2))
sketch7.addConstraint(Sketcher.Constraint("Symmetric", 1, 3, 2, 3, -1))
sketch7.addConstraint(Sketcher.Constraint("PointOnObject", 0, 3, -1))
sketch7.addConstraint(Sketcher.Constraint("Vertical", 0, 3, 1, 3))
sketch7.addConstraint(Sketcher.Constraint("Diameter", 0, Q("10.2 mm")))
sketch7.addConstraint(Sketcher.Constraint("DistanceX", -1, 1, 0, 3, Q("4.3 mm")))
sketch7.addConstraint(Sketcher.Constraint("DistanceY", -1, 1, 1, 3, Q("11.4 mm")))
sketch7.setExpression("Constraints[5]", "Params.sketch7_diameter")
pad7 = doc.addObject("PartDesign::Pad", "Pad006")
body.addObject(pad7)
pad7.Profile = sketch7
pad7.setExpression("Length", "Params.pad7_length")

sketch8 = doc.addObject("Sketcher::SketchObject", "Sketch007")
body.addObject(sketch8)
sketch8.AttachmentSupport = (doc.XY_Plane, [""])
sketch8.MapMode = "FlatFace"
sketch8.addGeometry(Part.LineSegment(V(29, 10, 0), V(29, -10, 0)), False)
sketch8.addGeometry(Part.LineSegment(V(29, -10, 0), V(26, -10, 0)), False)
sketch8.addGeometry(Part.LineSegment(V(26, -10, 0), V(26, 10, 0)), False)
sketch8.addGeometry(Part.LineSegment(V(26, 10, 0), V(29, 10, 0)), False)
sketch8.addConstraint(Sketcher.Constraint("Coincident", 0, 2, 1, 1))
sketch8.addConstraint(Sketcher.Constraint("Coincident", 1, 2, 2, 1))
sketch8.addConstraint(Sketcher.Constraint("Coincident", 2, 2, 3, 1))
sketch8.addConstraint(Sketcher.Constraint("Coincident", 3, 2, 0, 1))
sketch8.addConstraint(Sketcher.Constraint("Vertical", 0))
sketch8.addConstraint(Sketcher.Constraint("Horizontal", 1))
sketch8.addConstraint(Sketcher.Constraint("Vertical", 2))
sketch8.addConstraint(Sketcher.Constraint("Horizontal", 3))
sketch8.addConstraint(Sketcher.Constraint("DistanceX", 1, 2, 1, 1, Q("3 mm")))
sketch8.addConstraint(Sketcher.Constraint("DistanceY", 0, 2, 0, 1, Q("20 mm")))
sketch8.addConstraint(Sketcher.Constraint("DistanceX", -1, 1, 0, 2, Q("29 mm")))
sketch8.addConstraint(Sketcher.Constraint("DistanceY", 0, 2, -1, 1, Q("10 mm")))
sketch8.setExpression("Constraints[8]", "Params.sketch8_width")
sketch8.setExpression("Constraints[9]", "Params.sketch8_height")
pad8 = doc.addObject("PartDesign::Pad", "Pad007")
body.addObject(pad8)
pad8.Profile = sketch8
pad8.setExpression("Length", "Params.pad8_length")
pad8.Reversed = True

sketch9 = doc.addObject("Sketcher::SketchObject", "Sketch008")
body.addObject(sketch9)
sketch9.AttachmentSupport = (doc.XY_Plane, [""])
sketch9.MapMode = "FlatFace"
sketch9.AttachmentOffset = App.Placement(V(0, 0, 0.8), App.Rotation())
sketch9.addGeometry(Part.LineSegment(V(29, 10, 0), V(29, -10, 0)), False)
sketch9.addGeometry(Part.LineSegment(V(29, -10, 0), V(26, -10, 0)), False)
sketch9.addGeometry(Part.LineSegment(V(26, -10, 0), V(26, 10, 0)), False)
sketch9.addGeometry(Part.LineSegment(V(26, 10, 0), V(29, 10, 0)), False)
sketch9.addConstraint(Sketcher.Constraint("Coincident", 0, 2, 1, 1))
sketch9.addConstraint(Sketcher.Constraint("Coincident", 1, 2, 2, 1))
sketch9.addConstraint(Sketcher.Constraint("Coincident", 2, 2, 3, 1))
sketch9.addConstraint(Sketcher.Constraint("Coincident", 3, 2, 0, 1))
sketch9.addConstraint(Sketcher.Constraint("Vertical", 0))
sketch9.addConstraint(Sketcher.Constraint("Horizontal", 1))
sketch9.addConstraint(Sketcher.Constraint("Vertical", 2))
sketch9.addConstraint(Sketcher.Constraint("Horizontal", 3))
sketch9.addConstraint(Sketcher.Constraint("DistanceX", 1, 2, 1, 1, Q("3 mm")))
sketch9.addConstraint(Sketcher.Constraint("DistanceY", 0, 2, 0, 1, Q("20 mm")))
sketch9.addConstraint(Sketcher.Constraint("DistanceX", -1, 1, 0, 2, Q("29 mm")))
sketch9.addConstraint(Sketcher.Constraint("DistanceY", 0, 2, -1, 1, Q("10 mm")))
sketch9.setExpression("Constraints[8]", "Params.sketch9_width")
sketch9.setExpression("Constraints[9]", "Params.sketch9_height")
pad9 = doc.addObject("PartDesign::Pad", "Pad008")
body.addObject(pad9)
pad9.Profile = sketch9
pad9.setExpression("Length", "Params.pad9_length")

doc.recompute()
